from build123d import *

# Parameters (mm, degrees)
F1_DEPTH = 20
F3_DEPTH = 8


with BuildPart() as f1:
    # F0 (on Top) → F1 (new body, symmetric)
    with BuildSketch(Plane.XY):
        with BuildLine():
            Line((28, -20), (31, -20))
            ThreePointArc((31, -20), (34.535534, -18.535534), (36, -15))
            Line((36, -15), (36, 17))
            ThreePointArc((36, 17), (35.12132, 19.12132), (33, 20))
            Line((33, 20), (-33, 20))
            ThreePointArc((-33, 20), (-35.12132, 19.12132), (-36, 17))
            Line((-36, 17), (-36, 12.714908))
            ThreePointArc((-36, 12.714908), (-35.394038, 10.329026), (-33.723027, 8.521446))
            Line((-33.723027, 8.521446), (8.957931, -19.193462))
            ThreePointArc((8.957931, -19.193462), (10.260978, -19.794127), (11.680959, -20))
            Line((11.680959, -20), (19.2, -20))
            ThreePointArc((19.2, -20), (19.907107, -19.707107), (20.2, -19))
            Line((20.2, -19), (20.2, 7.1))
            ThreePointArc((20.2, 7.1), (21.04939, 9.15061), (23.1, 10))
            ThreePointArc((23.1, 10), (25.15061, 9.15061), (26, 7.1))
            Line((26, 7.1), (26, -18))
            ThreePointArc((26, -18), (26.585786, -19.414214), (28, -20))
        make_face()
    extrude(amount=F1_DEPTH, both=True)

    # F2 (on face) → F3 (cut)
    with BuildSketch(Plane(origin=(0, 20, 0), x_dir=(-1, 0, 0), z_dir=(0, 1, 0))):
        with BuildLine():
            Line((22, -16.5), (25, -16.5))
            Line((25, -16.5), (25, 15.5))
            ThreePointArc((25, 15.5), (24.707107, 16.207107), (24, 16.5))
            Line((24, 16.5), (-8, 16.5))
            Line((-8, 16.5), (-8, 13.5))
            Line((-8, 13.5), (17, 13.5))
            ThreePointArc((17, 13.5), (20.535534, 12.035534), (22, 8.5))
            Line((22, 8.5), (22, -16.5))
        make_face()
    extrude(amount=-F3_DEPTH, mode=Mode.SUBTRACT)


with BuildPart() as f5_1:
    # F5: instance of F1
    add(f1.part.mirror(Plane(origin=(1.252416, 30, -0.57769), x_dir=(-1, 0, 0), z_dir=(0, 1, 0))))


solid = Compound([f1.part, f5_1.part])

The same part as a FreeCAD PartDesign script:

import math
import FreeCAD as App
import Part
import Sketcher

doc = App.newDocument("Part")
body = doc.addObject("PartDesign::Body", "Body")

# Sketch on XY plane
sketch1 = doc.addObject("Sketcher::SketchObject", "Sketch")
body.addObject(sketch1)
sketch1.AttachmentSupport = (doc.XY_Plane, [""])
sketch1.MapMode = "FlatFace"
sketch1.addGeometry(Part.LineSegment(App.Vector(28, -20, 0), App.Vector(31, -20, 0)), False)
sketch1.addGeometry(Part.ArcOfCircle(Part.Circle(App.Vector(31, -15, 0), App.Vector(0, 0, 1), 5), math.radians(-90), math.radians(0)), False)
sketch1.addGeometry(Part.LineSegment(App.Vector(36, -15, 0), App.Vector(36, 17, 0)), False)
sketch1.addGeometry(Part.ArcOfCircle(Part.Circle(App.Vector(33, 17, 0), App.Vector(0, 0, 1), 3), math.radians(0), math.radians(90)), False)
sketch1.addGeometry(Part.LineSegment(App.Vector(33, 20, 0), App.Vector(-33, 20, 0)), False)
sketch1.addGeometry(Part.ArcOfCircle(Part.Circle(App.Vector(-33, 17, 0), App.Vector(0, 0, 1), 3), math.radians(90), math.radians(180)), False)
sketch1.addGeometry(Part.LineSegment(App.Vector(-36, 17, 0), App.Vector(-36, 12.7, 0)), False)
sketch1.addGeometry(Part.ArcOfCircle(Part.Circle(App.Vector(-31, 12.7, 0), App.Vector(0, 0, 1), 5), math.radians(180), math.radians(237)), False)
sketch1.addGeometry(Part.LineSegment(App.Vector(-33.7, 8.5, 0), App.Vector(9, -19.2, 0)), False)
sketch1.addGeometry(Part.ArcOfCircle(Part.Circle(App.Vector(11.7, -15, 0), App.Vector(0, 0, 1), 5), math.radians(-123), math.radians(-90)), False)
sketch1.addGeometry(Part.LineSegment(App.Vector(11.7, -20, 0), App.Vector(19.2, -20, 0)), False)
sketch1.addGeometry(Part.ArcOfCircle(Part.Circle(App.Vector(19.2, -19, 0), App.Vector(0, 0, 1), 1), math.radians(-90), math.radians(0)), False)
sketch1.addGeometry(Part.LineSegment(App.Vector(20.2, -19, 0), App.Vector(20.2, 7.1, 0)), False)
sketch1.addGeometry(Part.ArcOfCircle(Part.Circle(App.Vector(23.1, 7.1, 0), App.Vector(0, 0, 1), 2.9), math.radians(90), math.radians(180)), False)
sketch1.addGeometry(Part.ArcOfCircle(Part.Circle(App.Vector(23.1, 7.1, 0), App.Vector(0, 0, 1), 2.9), math.radians(0), math.radians(90)), False)
sketch1.addGeometry(Part.LineSegment(App.Vector(26, 7.1, 0), App.Vector(26, -18, 0)), False)
sketch1.addGeometry(Part.ArcOfCircle(Part.Circle(App.Vector(28, -18, 0), App.Vector(0, 0, 1), 2), math.radians(180), math.radians(270)), False)
sketch1.addConstraint(Sketcher.Constraint("Tangent", 0, 2, 1, 1))
sketch1.addConstraint(Sketcher.Constraint("Tangent", 1, 2, 2, 1))
sketch1.addConstraint(Sketcher.Constraint("Tangent", 2, 2, 3, 1))
sketch1.addConstraint(Sketcher.Constraint("Tangent", 3, 2, 4, 1))
sketch1.addConstraint(Sketcher.Constraint("Tangent", 4, 2, 5, 1))
sketch1.addConstraint(Sketcher.Constraint("Tangent", 5, 2, 6, 1))
sketch1.addConstraint(Sketcher.Constraint("Tangent", 6, 2, 7, 1))
sketch1.addConstraint(Sketcher.Constraint("Tangent", 7, 2, 8, 1))
sketch1.addConstraint(Sketcher.Constraint("Tangent", 8, 2, 9, 1))
sketch1.addConstraint(Sketcher.Constraint("Tangent", 9, 2, 10, 1))
sketch1.addConstraint(Sketcher.Constraint("Tangent", 10, 2, 11, 1))
sketch1.addConstraint(Sketcher.Constraint("Tangent", 11, 2, 12, 1))
sketch1.addConstraint(Sketcher.Constraint("Tangent", 12, 2, 13, 2))
sketch1.addConstraint(Sketcher.Constraint("Tangent", 13, 1, 14, 2))
sketch1.addConstraint(Sketcher.Constraint("Tangent", 14, 1, 15, 1))
sketch1.addConstraint(Sketcher.Constraint("Tangent", 15, 2, 16, 1))
sketch1.addConstraint(Sketcher.Constraint("Tangent", 16, 2, 0, 1))
sketch1.addConstraint(Sketcher.Constraint("Horizontal", 0))
sketch1.addConstraint(Sketcher.Constraint("Vertical", 2))
sketch1.addConstraint(Sketcher.Constraint("Horizontal", 4))
sketch1.addConstraint(Sketcher.Constraint("Vertical", 6))
sketch1.addConstraint(Sketcher.Constraint("Horizontal", 10))
sketch1.addConstraint(Sketcher.Constraint("Vertical", 12))
sketch1.addConstraint(Sketcher.Constraint("Vertical", 15))
sketch1.addConstraint(Sketcher.Constraint("Equal", 3, 5))
sketch1.addConstraint(Sketcher.Constraint("Equal", 1, 7))
sketch1.addConstraint(Sketcher.Constraint("Equal", 13, 14))
sketch1.addConstraint(Sketcher.Constraint("Horizontal", 0, 2, 9, 2))
sketch1.addConstraint(Sketcher.Constraint("Vertical", 14, 3, 13, 1))
sketch1.addConstraint(Sketcher.Constraint("Radius", 1, 5.0))
sketch1.addConstraint(Sketcher.Constraint("Radius", 3, 3.000001))
sketch1.addConstraint(Sketcher.Constraint("Radius", 11, 0.999999))
sketch1.addConstraint(Sketcher.Constraint("Radius", 16, 1.999999))
sketch1.addConstraint(Sketcher.Constraint("Radius", 13, 2.899999))
sketch1.addConstraint(Sketcher.Constraint("DistanceX", 0, 1, 0, 2, 3.0))
sketch1.addConstraint(Sketcher.Constraint("DistanceX", 4, 2, 4, 1, 66.0))
sketch1.addConstraint(Sketcher.Constraint("DistanceY", 2, 1, 2, 2, 32.0))
sketch1.addConstraint(Sketcher.Constraint("DistanceY", 12, 1, 12, 2, 26.1))
sketch1.addConstraint(Sketcher.Constraint("DistanceX", -1, 1, 1, 3, 31.0))
sketch1.addConstraint(Sketcher.Constraint("DistanceY", 1, 3, -1, 1, 15.0))
sketch1.addConstraint(Sketcher.Constraint("Radius", 9, 5.000007))
sketch1.addConstraint(Sketcher.Constraint("DistanceX", 10, 1, 10, 2, 7.519041))
sketch1.addConstraint(Sketcher.Constraint("DistanceY", 9, 3, 7, 3, 27.7149))
pad1 = doc.addObject("PartDesign::Pad", "Pad")
body.addObject(pad1)
pad1.Profile = sketch1
pad1.Length = 40
pad1.Midplane = True

# Sketch on XZ plane
sketch2 = doc.addObject("Sketcher::SketchObject", "Sketch001")
body.addObject(sketch2)
sketch2.AttachmentSupport = (doc.XZ_Plane, [""])
sketch2.MapMode = "FlatFace"
sketch2.AttachmentOffset = App.Placement(App.Vector(0, 0, -20), App.Rotation())
sketch2.addGeometry(Part.LineSegment(App.Vector(-22, -16.5, 0), App.Vector(-25, -16.5, 0)), False)
sketch2.addGeometry(Part.LineSegment(App.Vector(-25, -16.5, 0), App.Vector(-25, 15.5, 0)), False)
sketch2.addGeometry(Part.ArcOfCircle(Part.Circle(App.Vector(-24, 15.5, 0), App.Vector(0, 0, 1), 1), math.radians(90), math.radians(180)), False)
sketch2.addGeometry(Part.LineSegment(App.Vector(-24, 16.5, 0), App.Vector(8, 16.5, 0)), False)
sketch2.addGeometry(Part.LineSegment(App.Vector(8, 16.5, 0), App.Vector(8, 13.5, 0)), False)
sketch2.addGeometry(Part.LineSegment(App.Vector(8, 13.5, 0), App.Vector(-17, 13.5, 0)), False)
sketch2.addGeometry(Part.ArcOfCircle(Part.Circle(App.Vector(-17, 8.5, 0), App.Vector(0, 0, 1), 5), math.radians(90), math.radians(180)), False)
sketch2.addGeometry(Part.LineSegment(App.Vector(-22, 8.5, 0), App.Vector(-22, -16.5, 0)), False)
sketch2.addConstraint(Sketcher.Constraint("Coincident", 0, 2, 1, 1))
sketch2.addConstraint(Sketcher.Constraint("Tangent", 1, 2, 2, 2))
sketch2.addConstraint(Sketcher.Constraint("Tangent", 2, 1, 3, 1))
sketch2.addConstraint(Sketcher.Constraint("Coincident", 3, 2, 4, 1))
sketch2.addConstraint(Sketcher.Constraint("Coincident", 4, 2, 5, 1))
sketch2.addConstraint(Sketcher.Constraint("Tangent", 5, 2, 6, 1))
sketch2.addConstraint(Sketcher.Constraint("Tangent", 6, 2, 7, 1))
sketch2.addConstraint(Sketcher.Constraint("Coincident", 7, 2, 0, 1))
sketch2.addConstraint(Sketcher.Constraint("Horizontal", 0))
sketch2.addConstraint(Sketcher.Constraint("Vertical", 1))
sketch2.addConstraint(Sketcher.Constraint("Horizontal", 3))
sketch2.addConstraint(Sketcher.Constraint("Vertical", 4))
sketch2.addConstraint(Sketcher.Constraint("Horizontal", 5))
sketch2.addConstraint(Sketcher.Constraint("Vertical", 7))
sketch2.addConstraint(Sketcher.Constraint("Equal", 3, 1))
sketch2.addConstraint(Sketcher.Constraint("Equal", 0, 4))
sketch2.addConstraint(Sketcher.Constraint("Radius", 2, 0.999999))
sketch2.addConstraint(Sketcher.Constraint("Radius", 6, 5.0))
sketch2.addConstraint(Sketcher.Constraint("DistanceX", 0, 2, 0, 1, 3.0))
sketch2.addConstraint(Sketcher.Constraint("DistanceX", 3, 1, 3, 2, 32.0))
sketch2.addConstraint(Sketcher.Constraint("DistanceX", 2, 3, -1, 1, 24.000001))
sketch2.addConstraint(Sketcher.Constraint("DistanceY", -1, 1, 2, 3, 15.500001))
pocket1 = doc.addObject("PartDesign::Pocket", "Pocket")
body.addObject(pocket1)
pocket1.Profile = sketch2
pocket1.Length = 8
pocket1.Reversed = True
body2 = doc.addObject("PartDesign::Body", "Body001")
doc.recompute()

mirroring = doc.addObject("Part::Mirroring", "Mirroring")
mirroring.Source = body
mirroring.Base = App.Vector(1.252416, 30, -0.57769)
mirroring.Normal = App.Vector(0, 1, 0)
body2.BaseFeature = mirroring
doc.recompute()
mirroring.Visibility = False

doc.recompute()
